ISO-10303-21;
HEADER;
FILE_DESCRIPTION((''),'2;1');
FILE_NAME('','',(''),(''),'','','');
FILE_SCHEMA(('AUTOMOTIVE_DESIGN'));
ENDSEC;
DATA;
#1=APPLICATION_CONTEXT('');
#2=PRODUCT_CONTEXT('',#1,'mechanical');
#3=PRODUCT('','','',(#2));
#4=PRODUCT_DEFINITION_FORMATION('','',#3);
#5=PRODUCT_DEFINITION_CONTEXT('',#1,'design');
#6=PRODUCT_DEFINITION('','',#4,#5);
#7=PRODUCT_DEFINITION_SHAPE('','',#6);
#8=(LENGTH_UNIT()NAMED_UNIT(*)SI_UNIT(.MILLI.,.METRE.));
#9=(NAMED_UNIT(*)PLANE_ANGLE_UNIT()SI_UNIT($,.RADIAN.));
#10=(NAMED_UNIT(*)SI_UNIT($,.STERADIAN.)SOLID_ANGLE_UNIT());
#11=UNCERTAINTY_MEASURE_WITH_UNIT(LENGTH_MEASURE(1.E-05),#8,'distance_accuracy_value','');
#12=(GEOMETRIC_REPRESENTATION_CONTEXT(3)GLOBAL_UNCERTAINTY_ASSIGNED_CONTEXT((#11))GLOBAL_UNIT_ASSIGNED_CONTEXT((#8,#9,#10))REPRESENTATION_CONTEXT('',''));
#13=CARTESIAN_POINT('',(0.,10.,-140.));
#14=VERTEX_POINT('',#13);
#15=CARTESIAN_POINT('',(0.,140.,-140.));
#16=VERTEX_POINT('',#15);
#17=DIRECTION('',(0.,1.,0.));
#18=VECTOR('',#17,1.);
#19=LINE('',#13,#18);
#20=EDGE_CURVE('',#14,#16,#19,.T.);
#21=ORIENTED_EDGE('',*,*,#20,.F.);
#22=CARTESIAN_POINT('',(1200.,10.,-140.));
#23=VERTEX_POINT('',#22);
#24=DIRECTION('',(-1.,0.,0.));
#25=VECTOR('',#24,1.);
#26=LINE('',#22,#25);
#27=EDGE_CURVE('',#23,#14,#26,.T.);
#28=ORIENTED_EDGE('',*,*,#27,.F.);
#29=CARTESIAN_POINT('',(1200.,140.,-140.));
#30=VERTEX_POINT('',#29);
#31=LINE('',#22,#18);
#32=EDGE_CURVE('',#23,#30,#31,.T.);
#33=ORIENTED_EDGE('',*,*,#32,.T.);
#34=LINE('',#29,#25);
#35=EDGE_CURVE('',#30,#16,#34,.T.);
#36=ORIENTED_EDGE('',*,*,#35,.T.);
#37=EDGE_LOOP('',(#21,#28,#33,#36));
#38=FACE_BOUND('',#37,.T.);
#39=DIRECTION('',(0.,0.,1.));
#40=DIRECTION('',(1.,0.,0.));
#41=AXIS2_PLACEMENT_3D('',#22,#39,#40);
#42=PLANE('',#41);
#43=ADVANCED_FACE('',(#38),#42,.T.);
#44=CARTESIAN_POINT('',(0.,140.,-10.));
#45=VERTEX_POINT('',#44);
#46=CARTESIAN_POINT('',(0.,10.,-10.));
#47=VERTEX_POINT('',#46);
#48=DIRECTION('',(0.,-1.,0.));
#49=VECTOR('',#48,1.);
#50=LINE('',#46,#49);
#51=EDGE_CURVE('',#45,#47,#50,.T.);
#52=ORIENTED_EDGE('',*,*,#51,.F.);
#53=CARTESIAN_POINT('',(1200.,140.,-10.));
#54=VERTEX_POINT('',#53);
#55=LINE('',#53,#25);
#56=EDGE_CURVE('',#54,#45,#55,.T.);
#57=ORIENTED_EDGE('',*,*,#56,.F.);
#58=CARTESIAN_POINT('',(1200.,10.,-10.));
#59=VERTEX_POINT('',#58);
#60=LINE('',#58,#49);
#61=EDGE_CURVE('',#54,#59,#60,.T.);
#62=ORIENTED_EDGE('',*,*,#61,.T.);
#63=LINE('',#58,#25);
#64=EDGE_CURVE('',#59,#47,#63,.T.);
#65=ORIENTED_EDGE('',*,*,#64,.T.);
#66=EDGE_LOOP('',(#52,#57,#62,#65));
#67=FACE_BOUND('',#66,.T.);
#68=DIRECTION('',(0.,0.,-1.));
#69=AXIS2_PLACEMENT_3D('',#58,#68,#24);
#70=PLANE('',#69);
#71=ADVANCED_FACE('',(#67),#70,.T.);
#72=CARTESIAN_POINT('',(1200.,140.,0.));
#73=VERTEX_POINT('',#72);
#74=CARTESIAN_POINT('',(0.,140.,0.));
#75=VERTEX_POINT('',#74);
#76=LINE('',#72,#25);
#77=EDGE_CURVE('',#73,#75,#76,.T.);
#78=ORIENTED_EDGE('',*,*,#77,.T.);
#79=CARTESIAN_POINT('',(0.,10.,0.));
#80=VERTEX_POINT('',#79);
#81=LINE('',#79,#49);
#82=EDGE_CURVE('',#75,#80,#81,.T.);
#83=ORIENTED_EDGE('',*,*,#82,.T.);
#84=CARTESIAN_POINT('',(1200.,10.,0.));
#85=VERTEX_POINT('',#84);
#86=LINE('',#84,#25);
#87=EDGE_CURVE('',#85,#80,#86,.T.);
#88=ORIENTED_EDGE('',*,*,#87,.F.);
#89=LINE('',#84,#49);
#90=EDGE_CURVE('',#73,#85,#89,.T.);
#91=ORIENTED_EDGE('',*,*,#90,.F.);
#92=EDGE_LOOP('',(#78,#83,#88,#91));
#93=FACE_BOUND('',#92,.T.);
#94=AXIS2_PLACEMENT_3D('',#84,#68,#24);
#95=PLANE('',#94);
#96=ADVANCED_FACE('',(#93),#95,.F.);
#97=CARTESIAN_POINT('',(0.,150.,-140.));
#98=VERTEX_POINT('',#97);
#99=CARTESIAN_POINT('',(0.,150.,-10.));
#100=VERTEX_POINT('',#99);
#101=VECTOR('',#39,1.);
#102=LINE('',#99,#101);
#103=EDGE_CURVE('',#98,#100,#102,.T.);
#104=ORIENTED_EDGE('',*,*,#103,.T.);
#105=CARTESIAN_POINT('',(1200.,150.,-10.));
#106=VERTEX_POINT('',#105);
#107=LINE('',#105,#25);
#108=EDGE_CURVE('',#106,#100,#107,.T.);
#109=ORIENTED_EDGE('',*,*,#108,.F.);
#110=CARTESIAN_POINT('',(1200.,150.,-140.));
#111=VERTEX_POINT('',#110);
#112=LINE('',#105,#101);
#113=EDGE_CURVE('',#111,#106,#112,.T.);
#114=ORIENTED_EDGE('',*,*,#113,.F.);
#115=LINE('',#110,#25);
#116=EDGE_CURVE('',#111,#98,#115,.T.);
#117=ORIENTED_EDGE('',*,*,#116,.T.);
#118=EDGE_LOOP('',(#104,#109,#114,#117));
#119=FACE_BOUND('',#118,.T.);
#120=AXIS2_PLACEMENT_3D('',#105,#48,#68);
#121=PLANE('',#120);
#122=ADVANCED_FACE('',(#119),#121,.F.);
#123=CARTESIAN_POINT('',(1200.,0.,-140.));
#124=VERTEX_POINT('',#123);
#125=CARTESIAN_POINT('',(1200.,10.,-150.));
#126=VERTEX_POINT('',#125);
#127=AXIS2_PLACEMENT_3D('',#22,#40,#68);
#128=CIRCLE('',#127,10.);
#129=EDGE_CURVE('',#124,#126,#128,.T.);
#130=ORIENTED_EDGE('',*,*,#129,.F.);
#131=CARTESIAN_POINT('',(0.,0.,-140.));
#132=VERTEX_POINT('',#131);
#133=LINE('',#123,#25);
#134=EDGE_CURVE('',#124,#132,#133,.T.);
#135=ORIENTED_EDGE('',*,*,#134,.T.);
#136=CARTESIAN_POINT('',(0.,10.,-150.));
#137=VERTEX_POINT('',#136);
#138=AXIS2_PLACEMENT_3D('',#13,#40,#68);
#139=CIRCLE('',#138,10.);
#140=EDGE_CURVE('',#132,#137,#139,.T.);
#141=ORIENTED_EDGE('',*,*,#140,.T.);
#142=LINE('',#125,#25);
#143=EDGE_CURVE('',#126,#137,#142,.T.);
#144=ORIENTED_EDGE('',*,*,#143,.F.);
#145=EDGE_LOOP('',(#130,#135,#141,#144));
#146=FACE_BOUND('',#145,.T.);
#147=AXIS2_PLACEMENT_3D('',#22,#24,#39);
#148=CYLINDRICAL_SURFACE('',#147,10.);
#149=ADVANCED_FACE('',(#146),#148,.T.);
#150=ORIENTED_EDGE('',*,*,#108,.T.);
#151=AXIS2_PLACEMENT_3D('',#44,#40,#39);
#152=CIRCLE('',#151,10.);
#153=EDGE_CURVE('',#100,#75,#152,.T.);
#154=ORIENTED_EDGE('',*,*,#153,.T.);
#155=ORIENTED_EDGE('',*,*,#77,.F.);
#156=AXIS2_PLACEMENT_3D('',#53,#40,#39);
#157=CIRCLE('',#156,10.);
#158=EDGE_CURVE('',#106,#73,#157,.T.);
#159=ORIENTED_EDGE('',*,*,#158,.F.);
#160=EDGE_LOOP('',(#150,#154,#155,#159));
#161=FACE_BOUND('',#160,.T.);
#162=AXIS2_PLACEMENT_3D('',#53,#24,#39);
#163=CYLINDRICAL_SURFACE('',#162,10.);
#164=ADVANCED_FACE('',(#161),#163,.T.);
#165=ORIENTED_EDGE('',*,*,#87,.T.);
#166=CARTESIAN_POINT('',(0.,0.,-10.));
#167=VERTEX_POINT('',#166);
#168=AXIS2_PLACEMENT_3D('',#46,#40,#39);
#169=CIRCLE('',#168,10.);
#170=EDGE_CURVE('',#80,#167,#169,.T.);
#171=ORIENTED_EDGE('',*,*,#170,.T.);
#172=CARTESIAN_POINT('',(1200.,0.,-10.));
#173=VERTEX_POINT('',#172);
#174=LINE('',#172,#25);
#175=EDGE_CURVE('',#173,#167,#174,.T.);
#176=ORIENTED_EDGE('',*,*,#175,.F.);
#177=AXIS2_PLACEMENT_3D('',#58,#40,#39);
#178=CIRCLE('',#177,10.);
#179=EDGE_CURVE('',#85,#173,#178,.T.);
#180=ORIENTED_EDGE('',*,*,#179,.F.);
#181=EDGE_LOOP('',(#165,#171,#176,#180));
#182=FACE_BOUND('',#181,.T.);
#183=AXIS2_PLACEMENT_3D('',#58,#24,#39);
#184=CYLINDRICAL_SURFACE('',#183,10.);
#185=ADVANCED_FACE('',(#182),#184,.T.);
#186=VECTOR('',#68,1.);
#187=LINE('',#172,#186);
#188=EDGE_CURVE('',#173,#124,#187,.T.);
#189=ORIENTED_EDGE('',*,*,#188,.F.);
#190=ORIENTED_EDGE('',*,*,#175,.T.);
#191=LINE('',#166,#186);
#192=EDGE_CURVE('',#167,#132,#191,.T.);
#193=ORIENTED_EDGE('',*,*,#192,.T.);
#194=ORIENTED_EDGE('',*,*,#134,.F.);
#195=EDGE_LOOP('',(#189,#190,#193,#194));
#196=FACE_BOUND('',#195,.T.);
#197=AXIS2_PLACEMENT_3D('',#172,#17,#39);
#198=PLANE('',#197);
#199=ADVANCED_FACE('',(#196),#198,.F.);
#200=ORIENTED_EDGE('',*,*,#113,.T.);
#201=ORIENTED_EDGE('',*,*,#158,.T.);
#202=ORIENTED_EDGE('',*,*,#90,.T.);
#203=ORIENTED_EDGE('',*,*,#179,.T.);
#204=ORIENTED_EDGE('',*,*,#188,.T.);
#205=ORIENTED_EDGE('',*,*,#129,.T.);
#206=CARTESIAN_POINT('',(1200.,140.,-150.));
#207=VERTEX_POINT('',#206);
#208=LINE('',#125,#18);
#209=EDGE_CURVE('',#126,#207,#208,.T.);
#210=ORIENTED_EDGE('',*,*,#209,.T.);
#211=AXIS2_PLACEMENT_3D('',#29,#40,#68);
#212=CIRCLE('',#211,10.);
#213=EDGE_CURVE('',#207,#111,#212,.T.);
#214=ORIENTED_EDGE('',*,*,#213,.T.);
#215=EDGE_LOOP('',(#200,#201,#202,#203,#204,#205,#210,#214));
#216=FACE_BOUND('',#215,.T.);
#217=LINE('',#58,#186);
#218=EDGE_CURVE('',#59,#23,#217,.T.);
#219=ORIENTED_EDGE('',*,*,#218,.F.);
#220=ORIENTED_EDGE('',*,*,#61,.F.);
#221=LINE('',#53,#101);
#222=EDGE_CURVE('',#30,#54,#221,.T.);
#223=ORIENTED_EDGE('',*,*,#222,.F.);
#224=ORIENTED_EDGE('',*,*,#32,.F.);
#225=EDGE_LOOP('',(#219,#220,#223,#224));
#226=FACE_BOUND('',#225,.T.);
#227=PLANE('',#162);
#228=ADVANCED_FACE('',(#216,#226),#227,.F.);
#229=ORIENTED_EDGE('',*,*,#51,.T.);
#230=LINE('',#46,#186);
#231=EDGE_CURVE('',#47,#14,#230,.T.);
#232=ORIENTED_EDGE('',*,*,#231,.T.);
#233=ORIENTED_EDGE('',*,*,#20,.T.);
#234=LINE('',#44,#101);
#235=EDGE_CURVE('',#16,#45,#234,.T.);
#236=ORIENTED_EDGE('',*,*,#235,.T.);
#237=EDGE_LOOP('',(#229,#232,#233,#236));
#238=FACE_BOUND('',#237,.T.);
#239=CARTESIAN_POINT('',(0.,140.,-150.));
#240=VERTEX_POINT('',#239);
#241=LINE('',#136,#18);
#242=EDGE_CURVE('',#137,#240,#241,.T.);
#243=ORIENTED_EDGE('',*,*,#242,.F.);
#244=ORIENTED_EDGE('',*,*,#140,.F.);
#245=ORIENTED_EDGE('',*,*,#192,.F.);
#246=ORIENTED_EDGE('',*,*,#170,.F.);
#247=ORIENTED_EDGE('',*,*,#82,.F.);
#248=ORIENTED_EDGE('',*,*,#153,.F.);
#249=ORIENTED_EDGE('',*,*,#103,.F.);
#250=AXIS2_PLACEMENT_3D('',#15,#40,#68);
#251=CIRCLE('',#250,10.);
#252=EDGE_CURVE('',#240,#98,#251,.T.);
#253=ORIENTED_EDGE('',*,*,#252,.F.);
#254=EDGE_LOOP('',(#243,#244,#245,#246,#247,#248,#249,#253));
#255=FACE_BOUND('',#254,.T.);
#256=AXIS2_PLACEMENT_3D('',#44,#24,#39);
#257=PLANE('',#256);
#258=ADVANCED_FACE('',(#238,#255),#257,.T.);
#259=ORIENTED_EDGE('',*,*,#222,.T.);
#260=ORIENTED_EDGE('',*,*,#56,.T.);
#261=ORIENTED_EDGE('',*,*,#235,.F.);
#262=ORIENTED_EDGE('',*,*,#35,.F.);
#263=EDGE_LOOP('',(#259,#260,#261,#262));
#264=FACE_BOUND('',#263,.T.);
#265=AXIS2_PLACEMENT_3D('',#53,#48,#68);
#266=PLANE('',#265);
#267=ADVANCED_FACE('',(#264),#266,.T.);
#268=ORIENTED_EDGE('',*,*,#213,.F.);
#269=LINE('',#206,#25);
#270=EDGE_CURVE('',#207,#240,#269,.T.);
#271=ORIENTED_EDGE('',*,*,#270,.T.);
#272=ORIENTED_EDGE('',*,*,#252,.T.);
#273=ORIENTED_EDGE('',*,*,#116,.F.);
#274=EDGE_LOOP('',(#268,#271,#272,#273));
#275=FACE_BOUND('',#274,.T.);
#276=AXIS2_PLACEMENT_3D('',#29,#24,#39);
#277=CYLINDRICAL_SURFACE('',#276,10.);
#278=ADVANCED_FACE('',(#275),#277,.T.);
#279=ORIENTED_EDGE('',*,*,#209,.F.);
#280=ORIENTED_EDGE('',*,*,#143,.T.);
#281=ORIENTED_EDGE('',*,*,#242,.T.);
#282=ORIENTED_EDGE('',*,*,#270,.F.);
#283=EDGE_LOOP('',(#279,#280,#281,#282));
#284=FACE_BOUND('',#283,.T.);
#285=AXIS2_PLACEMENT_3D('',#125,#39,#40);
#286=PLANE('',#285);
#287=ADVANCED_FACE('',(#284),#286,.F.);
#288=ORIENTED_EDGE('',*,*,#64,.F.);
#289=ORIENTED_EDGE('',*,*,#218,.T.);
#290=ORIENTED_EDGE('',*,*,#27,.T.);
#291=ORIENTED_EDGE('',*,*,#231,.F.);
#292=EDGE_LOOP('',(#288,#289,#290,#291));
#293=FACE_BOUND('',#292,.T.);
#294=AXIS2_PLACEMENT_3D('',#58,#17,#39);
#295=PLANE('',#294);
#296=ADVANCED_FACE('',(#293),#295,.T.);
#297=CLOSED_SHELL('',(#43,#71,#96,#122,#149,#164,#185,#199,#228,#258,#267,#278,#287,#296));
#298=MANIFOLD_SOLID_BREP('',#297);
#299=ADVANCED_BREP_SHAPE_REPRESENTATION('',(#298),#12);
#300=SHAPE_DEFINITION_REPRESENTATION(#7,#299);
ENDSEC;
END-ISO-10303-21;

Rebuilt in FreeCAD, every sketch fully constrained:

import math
import FreeCAD as App
import Part
import Sketcher

doc = App.newDocument("Part")
body = doc.addObject("PartDesign::Body", "Body")

sketch1 = body.newObject("Sketcher::SketchObject", "Sketch")
sketch1.AttachmentSupport = (doc.getObject("YZ_Plane"), [""])
sketch1.MapMode = "FlatFace"
sketch1.addGeometry([
    Part.LineSegment(App.Vector(0, -10, 0), App.Vector(0, -140, 0)),
    Part.ArcOfCircle(Part.Circle(App.Vector(10, -140, 0), App.Vector(0, 0, 1), 10), math.radians(180), math.radians(270)),
    Part.LineSegment(App.Vector(10, -150, 0), App.Vector(140, -150, 0)),
    Part.ArcOfCircle(Part.Circle(App.Vector(140, -140, 0), App.Vector(0, 0, 1), 10), math.radians(-90), math.radians(0)),
    Part.LineSegment(App.Vector(150, -140, 0), App.Vector(150, -10, 0)),
    Part.ArcOfCircle(Part.Circle(App.Vector(140, -10, 0), App.Vector(0, 0, 1), 10), math.radians(0), math.radians(90)),
    Part.LineSegment(App.Vector(140, 0, 0), App.Vector(10, 0, 0)),
    Part.ArcOfCircle(Part.Circle(App.Vector(10, -10, 0), App.Vector(0, 0, 1), 10), math.radians(90), math.radians(180)),
    Part.LineSegment(App.Vector(10, -140, 0), App.Vector(10, -10, 0)),
    Part.LineSegment(App.Vector(10, -10, 0), App.Vector(140, -10, 0)),
    Part.LineSegment(App.Vector(140, -10, 0), App.Vector(140, -140, 0)),
    Part.LineSegment(App.Vector(140, -140, 0), App.Vector(10, -140, 0)),
], False)
sketch1.addConstraint([
    Sketcher.Constraint("Tangent", 0, 2, 1, 1),
    Sketcher.Constraint("Tangent", 1, 2, 2, 1),
    Sketcher.Constraint("Tangent", 2, 2, 3, 1),
    Sketcher.Constraint("Tangent", 3, 2, 4, 1),
    Sketcher.Constraint("Tangent", 4, 2, 5, 1),
    Sketcher.Constraint("Tangent", 5, 2, 6, 1),
    Sketcher.Constraint("Tangent", 6, 2, 7, 1),
    Sketcher.Constraint("Tangent", 7, 2, 0, 1),
    Sketcher.Constraint("Coincident", 8, 2, 9, 1),
    Sketcher.Constraint("Coincident", 9, 2, 10, 1),
    Sketcher.Constraint("Coincident", 10, 2, 11, 1),
    Sketcher.Constraint("Coincident", 11, 2, 8, 1),
    Sketcher.Constraint("Vertical", 0),
    Sketcher.Constraint("Horizontal", 2),
    Sketcher.Constraint("Vertical", 4),
    Sketcher.Constraint("Horizontal", 6),
    Sketcher.Constraint("Vertical", 8),
    Sketcher.Constraint("Horizontal", 9),
    Sketcher.Constraint("Vertical", 10),
    Sketcher.Constraint("Horizontal", 11),
    Sketcher.Constraint("Coincident", 8, 2, 7, 3),
    Sketcher.Constraint("Coincident", 9, 2, 5, 3),
    Sketcher.Constraint("Coincident", 10, 2, 3, 3),
    Sketcher.Constraint("Equal", 1, 3),
    Sketcher.Constraint("PointOnObject", 0, 2, -2),
    Sketcher.Constraint("PointOnObject", 5, 2, -1),
    Sketcher.Constraint("Equal", 11, 0),
    Sketcher.Constraint("Radius", 1, 10.0),
    Sketcher.Constraint("DistanceX", 2, 1, 2, 2, 130.0),
])
pad1 = body.newObject("PartDesign::Pad", "Pad")
pad1.Profile = sketch1
pad1.Length = 1200

doc.recompute()
